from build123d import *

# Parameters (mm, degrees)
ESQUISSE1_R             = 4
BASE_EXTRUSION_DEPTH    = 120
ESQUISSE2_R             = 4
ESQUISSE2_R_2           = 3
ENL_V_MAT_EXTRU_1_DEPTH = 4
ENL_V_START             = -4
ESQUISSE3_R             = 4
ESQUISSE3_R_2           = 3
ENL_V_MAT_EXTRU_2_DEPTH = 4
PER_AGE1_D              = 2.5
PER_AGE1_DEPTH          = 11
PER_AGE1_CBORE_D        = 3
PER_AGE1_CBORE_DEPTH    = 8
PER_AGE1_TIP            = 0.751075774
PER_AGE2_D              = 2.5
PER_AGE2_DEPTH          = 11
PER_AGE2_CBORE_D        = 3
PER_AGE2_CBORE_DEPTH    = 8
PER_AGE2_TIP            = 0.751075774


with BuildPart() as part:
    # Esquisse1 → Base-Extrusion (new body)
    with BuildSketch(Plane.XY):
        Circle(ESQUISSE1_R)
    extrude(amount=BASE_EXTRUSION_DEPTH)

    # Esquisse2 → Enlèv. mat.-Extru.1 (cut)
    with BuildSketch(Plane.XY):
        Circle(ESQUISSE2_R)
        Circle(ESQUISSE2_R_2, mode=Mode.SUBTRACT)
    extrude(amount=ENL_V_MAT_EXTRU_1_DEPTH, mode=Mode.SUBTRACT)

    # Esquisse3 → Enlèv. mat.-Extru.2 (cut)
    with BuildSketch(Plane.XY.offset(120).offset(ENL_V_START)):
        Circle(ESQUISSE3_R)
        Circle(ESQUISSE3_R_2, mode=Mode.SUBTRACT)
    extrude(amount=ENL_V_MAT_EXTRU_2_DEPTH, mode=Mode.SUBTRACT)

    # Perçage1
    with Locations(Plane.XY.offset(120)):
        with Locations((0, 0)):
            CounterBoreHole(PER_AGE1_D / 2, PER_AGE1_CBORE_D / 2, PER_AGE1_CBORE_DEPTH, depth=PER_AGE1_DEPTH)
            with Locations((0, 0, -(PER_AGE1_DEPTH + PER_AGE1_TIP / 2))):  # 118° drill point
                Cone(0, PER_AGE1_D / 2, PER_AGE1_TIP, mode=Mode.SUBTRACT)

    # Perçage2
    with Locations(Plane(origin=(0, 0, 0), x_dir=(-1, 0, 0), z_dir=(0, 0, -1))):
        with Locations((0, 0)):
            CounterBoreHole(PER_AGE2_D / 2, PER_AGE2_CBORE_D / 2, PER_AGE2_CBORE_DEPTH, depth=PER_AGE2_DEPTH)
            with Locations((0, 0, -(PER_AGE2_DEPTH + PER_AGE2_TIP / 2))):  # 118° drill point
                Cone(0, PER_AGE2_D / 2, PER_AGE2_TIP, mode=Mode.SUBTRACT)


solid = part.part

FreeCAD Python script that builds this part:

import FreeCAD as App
import Part
import Sketcher

V = App.Vector

doc = App.newDocument("Part")
body = doc.addObject("PartDesign::Body", "Body")

# Sketch on XY plane
sketch1 = body.newObject("Sketcher::SketchObject", "Sketch")
sketch1.AttachmentSupport = (doc.getObject("XY_Plane"), [""])
sketch1.MapMode = "FlatFace"
sketch1.addGeometry(Part.Circle(V(0, 0, 0), V(0, 0, 1), 4), False)
sketch1.addConstraint([
    Sketcher.Constraint("Coincident", 0, 3, -1, 1),
    Sketcher.Constraint("Diameter", 0, 8.0),
])
pad1 = body.newObject("PartDesign::Pad", "Pad")
pad1.Profile = sketch1
pad1.Length = 120

# Sketch on XY plane
sketch2 = body.newObject("Sketcher::SketchObject", "Sketch001")
sketch2.AttachmentSupport = (doc.getObject("XY_Plane"), [""])
sketch2.MapMode = "FlatFace"
sketch2.addGeometry([
    Part.Circle(V(0, 0, 0), V(0, 0, 1), 4),
    Part.Circle(V(0, 0, 0), V(0, 0, 1), 3),
], False)
sketch2.addConstraint([
    Sketcher.Constraint("Coincident", 0, 3, -1, 1),
    Sketcher.Constraint("Coincident", 1, 3, -1, 1),
    Sketcher.Constraint("Diameter", 0, 8.0),
    Sketcher.Constraint("Diameter", 1, 6.0),
])
pocket1 = body.newObject("PartDesign::Pocket", "Pocket")
pocket1.Profile = sketch2
pocket1.Length = 4
pocket1.Reversed = True

# Sketch on XY plane
sketch3 = body.newObject("Sketcher::SketchObject", "Sketch002")
sketch3.AttachmentSupport = (doc.getObject("XY_Plane"), [""])
sketch3.MapMode = "FlatFace"
sketch3.AttachmentOffset = App.Placement(V(0, 0, 116), App.Rotation())
sketch3.addGeometry([
    Part.Circle(V(0, 0, 0), V(0, 0, 1), 4),
    Part.Circle(V(0, 0, 0), V(0, 0, 1), 3),
], False)
sketch3.addConstraint([
    Sketcher.Constraint("Coincident", 0, 3, -1, 1),
    Sketcher.Constraint("Coincident", 1, 3, -1, 1),
    Sketcher.Constraint("Diameter", 0, 8.0),
    Sketcher.Constraint("Diameter", 1, 6.0),
])
pocket2 = body.newObject("PartDesign::Pocket", "Pocket001")
pocket2.Profile = sketch3
pocket2.Length = 4
pocket2.Reversed = True

# Sketch on XY plane
sketch4 = body.newObject("Sketcher::SketchObject", "Sketch003")
sketch4.AttachmentSupport = (doc.getObject("XY_Plane"), [""])
sketch4.MapMode = "FlatFace"
sketch4.AttachmentOffset = App.Placement(V(0, 0, 120), App.Rotation())
sketch4.addGeometry(Part.Circle(V(0, 0, 0), V(0, 0, 1), 1.2), False)
sketch4.addConstraint([
    Sketcher.Constraint("Coincident", 0, 3, -1, 1),
    Sketcher.Constraint("Diameter", 0, 2.5),
])
doc.recompute()
hole = body.newObject("PartDesign::Hole", "Hole")
hole.Profile = sketch4
hole.ThreadType = "None"
hole.Diameter = 2.5
hole.DepthType = "Dimension"
hole.Depth = 11
hole.DrillPoint = "Angled"
hole.DrillPointAngle = 118
hole.HoleCutType = "Counterbore"
hole.HoleCutDiameter = 3
hole.HoleCutDepth = 8

# Sketch on XY plane
sketch5 = body.newObject("Sketcher::SketchObject", "Sketch004")
sketch5.AttachmentSupport = (doc.getObject("XY_Plane"), [""])
sketch5.MapMode = "FlatFace"
sketch5.addGeometry(Part.Circle(V(0, 0, 0), V(0, 0, 1), 1.2), False)
sketch5.addConstraint([
    Sketcher.Constraint("Coincident", 0, 3, -1, 1),
    Sketcher.Constraint("Diameter", 0, 2.5),
])
doc.recompute()
hole2 = body.newObject("PartDesign::Hole", "Hole001")
hole2.Profile = sketch5
hole2.ThreadType = "None"
hole2.Diameter = 2.5
hole2.DepthType = "Dimension"
hole2.Depth = 11
hole2.DrillPoint = "Angled"
hole2.DrillPointAngle = 118
hole2.HoleCutType = "Counterbore"
hole2.HoleCutDiameter = 3
hole2.HoleCutDepth = 8
hole2.Reversed = True

doc.recompute()
